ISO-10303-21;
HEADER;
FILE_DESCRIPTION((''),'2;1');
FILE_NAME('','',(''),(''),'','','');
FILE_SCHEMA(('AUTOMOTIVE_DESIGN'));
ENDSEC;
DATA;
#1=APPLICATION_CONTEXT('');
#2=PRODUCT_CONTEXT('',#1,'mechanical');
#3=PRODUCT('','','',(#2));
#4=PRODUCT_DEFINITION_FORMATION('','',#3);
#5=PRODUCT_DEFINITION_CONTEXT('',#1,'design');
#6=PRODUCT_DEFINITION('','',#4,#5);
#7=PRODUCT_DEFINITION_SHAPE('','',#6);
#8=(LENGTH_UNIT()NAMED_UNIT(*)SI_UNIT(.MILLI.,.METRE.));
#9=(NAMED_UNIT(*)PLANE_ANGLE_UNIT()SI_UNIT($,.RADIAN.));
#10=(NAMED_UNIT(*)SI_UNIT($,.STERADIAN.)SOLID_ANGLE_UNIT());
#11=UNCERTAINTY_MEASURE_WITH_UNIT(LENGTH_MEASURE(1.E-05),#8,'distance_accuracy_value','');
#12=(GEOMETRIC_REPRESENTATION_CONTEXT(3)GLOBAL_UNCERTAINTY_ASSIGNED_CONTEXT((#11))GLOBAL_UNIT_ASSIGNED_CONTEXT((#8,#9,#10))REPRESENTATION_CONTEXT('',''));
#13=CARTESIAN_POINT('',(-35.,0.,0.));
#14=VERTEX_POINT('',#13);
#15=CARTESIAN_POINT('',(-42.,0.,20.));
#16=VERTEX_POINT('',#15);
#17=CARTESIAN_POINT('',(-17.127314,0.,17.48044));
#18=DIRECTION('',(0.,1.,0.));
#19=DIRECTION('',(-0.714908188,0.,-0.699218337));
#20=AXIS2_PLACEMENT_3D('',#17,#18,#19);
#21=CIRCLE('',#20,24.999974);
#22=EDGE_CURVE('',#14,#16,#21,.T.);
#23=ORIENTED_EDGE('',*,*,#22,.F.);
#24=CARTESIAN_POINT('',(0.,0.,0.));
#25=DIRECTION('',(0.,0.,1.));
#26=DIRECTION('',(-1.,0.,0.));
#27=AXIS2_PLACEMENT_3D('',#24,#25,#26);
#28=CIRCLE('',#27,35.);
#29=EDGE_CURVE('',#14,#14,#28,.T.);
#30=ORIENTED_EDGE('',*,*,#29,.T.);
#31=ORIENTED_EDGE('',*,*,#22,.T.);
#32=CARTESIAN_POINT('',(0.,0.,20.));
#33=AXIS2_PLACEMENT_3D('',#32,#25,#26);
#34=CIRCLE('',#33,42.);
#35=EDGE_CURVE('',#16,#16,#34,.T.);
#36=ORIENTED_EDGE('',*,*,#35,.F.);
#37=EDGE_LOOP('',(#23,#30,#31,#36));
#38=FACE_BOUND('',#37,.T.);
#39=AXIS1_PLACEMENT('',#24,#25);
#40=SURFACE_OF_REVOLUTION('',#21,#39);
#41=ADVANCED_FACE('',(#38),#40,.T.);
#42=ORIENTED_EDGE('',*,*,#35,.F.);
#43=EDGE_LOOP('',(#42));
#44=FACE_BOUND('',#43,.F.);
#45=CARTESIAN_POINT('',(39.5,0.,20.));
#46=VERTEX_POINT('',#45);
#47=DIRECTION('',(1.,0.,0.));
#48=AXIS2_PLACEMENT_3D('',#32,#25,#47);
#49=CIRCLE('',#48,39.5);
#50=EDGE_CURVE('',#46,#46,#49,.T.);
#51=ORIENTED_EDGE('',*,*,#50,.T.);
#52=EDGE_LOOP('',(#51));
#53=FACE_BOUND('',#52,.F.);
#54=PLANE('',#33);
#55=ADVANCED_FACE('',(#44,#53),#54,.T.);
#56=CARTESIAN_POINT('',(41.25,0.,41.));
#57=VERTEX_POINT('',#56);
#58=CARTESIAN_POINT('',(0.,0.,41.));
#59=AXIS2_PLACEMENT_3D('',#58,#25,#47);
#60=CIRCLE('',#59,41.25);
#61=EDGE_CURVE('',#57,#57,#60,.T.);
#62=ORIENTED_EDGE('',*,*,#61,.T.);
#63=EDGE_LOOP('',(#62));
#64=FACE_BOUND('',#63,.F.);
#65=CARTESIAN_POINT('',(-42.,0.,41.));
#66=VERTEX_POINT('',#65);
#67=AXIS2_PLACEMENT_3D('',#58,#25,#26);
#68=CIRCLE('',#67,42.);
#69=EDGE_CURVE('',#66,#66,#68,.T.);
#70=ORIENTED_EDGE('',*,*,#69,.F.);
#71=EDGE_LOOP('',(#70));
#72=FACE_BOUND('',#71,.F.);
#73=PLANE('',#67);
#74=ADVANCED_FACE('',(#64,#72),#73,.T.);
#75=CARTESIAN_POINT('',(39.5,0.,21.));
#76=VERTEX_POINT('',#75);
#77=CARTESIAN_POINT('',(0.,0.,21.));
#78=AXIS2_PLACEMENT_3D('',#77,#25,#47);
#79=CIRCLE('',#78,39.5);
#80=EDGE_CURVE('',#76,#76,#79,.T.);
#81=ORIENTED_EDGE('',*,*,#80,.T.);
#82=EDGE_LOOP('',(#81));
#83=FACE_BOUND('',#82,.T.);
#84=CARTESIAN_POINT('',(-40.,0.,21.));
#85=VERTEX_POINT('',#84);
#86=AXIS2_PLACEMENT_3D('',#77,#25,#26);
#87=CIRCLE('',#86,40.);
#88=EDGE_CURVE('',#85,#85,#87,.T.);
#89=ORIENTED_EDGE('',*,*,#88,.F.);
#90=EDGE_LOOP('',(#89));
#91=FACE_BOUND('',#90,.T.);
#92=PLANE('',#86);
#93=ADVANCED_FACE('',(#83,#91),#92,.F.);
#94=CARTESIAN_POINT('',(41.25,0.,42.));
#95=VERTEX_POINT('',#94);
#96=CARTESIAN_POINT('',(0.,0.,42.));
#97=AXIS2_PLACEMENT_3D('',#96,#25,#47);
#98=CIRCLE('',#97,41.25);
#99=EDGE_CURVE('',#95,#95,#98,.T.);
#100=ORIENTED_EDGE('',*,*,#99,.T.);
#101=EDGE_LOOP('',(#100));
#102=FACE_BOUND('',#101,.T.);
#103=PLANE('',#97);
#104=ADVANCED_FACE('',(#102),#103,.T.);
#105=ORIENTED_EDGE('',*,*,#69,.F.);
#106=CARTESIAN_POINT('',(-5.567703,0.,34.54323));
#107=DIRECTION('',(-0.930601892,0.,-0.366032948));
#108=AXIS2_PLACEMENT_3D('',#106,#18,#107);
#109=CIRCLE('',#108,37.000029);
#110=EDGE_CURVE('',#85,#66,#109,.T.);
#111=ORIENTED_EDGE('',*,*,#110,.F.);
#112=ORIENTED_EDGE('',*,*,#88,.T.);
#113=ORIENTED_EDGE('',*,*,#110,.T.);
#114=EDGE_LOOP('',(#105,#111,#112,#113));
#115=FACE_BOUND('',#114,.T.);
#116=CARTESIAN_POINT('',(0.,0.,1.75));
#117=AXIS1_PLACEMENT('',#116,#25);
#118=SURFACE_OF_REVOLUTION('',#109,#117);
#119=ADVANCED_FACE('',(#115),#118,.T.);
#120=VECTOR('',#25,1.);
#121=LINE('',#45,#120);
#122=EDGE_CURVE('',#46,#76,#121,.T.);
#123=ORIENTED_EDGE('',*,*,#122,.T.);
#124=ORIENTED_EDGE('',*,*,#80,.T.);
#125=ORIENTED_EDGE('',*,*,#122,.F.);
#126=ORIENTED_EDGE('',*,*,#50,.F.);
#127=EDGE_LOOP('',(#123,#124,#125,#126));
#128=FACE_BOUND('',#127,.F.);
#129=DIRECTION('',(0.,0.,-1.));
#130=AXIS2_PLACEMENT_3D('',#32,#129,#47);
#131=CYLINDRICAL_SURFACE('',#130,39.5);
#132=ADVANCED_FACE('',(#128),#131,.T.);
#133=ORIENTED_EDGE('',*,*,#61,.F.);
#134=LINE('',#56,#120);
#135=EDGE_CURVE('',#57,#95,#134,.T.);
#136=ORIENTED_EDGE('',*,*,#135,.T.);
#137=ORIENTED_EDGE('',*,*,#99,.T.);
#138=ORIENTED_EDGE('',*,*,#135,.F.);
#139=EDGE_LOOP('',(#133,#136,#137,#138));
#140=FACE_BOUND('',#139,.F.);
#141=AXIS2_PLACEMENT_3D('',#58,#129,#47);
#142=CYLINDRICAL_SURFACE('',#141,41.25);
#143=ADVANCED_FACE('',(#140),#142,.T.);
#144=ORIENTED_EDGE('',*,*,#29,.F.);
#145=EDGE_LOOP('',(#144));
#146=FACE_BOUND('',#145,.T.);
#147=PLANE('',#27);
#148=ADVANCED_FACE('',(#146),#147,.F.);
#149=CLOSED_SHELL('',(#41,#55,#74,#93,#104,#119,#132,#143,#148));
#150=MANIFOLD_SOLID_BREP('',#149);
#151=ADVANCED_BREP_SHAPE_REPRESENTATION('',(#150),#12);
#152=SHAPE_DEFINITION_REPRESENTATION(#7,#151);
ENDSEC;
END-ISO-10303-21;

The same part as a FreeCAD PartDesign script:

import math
import FreeCAD as App
import Part
import Sketcher

V = App.Vector

doc = App.newDocument("Part")
params = doc.addObject("Spreadsheet::Sheet", "Params")
for row, (alias, value) in enumerate([
    ("sketch1_radius", "25 mm"),
    ("sketch1_width", "35 mm"),
    ("sketch1_width2", "42 mm"),
    ("sketch1_height", "20 mm"),
    ("revolution_angle", "360 deg"),
    ("sketch2_diameter", "79 mm"),
    ("pad1_length", "1 mm"),
    ("sketch3_radius", "37 mm"),
    ("sketch3_width", "40 mm"),
    ("sketch3_width2", "42 mm"),
    ("sketch3_height", "20 mm"),
    ("revolution2_angle", "360 deg"),
    ("sketch4_diameter", "82.5 mm"),
    ("pad2_length", "1 mm"),
], start=1):
    params.set(f"A{row}", alias)
    params.set(f"B{row}", "=" + value)
    params.setAlias(f"B{row}", alias)

body = doc.addObject("PartDesign::Body", "Body")

# Sketch on XZ plane
sketch1 = doc.addObject("Sketcher::SketchObject", "Sketch")
body.addObject(sketch1)
sketch1.AttachmentSupport = (doc.XZ_Plane, [""])
sketch1.MapMode = "FlatFace"
sketch1.addGeometry(Part.LineSegment(V(0, 20, 0), V(0, 0, 0)), False)
sketch1.addGeometry(Part.LineSegment(V(0, 0, 0), V(-35, 0, 0)), False)
sketch1.addGeometry(Part.ArcOfCircle(Part.Circle(V(-17, 17, 0), V(0, 0, 1), 25), math.radians(174), math.radians(224)), False)
sketch1.addGeometry(Part.LineSegment(V(-42, 20, 0), V(0, 20, 0)), False)
sketch1.addConstraint(Sketcher.Constraint("Coincident", 0, 2, 1, 1))
sketch1.addConstraint(Sketcher.Constraint("Coincident", 1, 2, 2, 2))
sketch1.addConstraint(Sketcher.Constraint("Coincident", 2, 1, 3, 1))
sketch1.addConstraint(Sketcher.Constraint("Coincident", 3, 2, 0, 1))
sketch1.addConstraint(Sketcher.Constraint("Vertical", 0))
sketch1.addConstraint(Sketcher.Constraint("Horizontal", 1))
sketch1.addConstraint(Sketcher.Constraint("Horizontal", 3))
sketch1.addConstraint(Sketcher.Constraint("Coincident", 0, 2, -1, 1))
sketch1.addConstraint(Sketcher.Constraint("Radius", 2, 25.0))
sketch1.addConstraint(Sketcher.Constraint("DistanceX", 1, 2, 1, 1, 35.0))
sketch1.addConstraint(Sketcher.Constraint("DistanceX", 3, 1, 3, 2, 42.0))
sketch1.addConstraint(Sketcher.Constraint("DistanceY", 0, 2, 0, 1, 20.0))
sketch1.setExpression("Constraints[8]", "Params.sketch1_radius")
sketch1.setExpression("Constraints[9]", "Params.sketch1_width")
sketch1.setExpression("Constraints[10]", "Params.sketch1_width2")
sketch1.setExpression("Constraints[11]", "Params.sketch1_height")
revolution = doc.addObject("PartDesign::Revolution", "Revolution")
body.addObject(revolution)
revolution.Profile = sketch1
revolution.ReferenceAxis = (sketch1, ["V_Axis"])
revolution.setExpression("Angle", "Params.revolution_angle")

# Sketch on XY plane
sketch2 = doc.addObject("Sketcher::SketchObject", "Sketch001")
body.addObject(sketch2)
sketch2.AttachmentSupport = (doc.XY_Plane, [""])
sketch2.MapMode = "FlatFace"
sketch2.AttachmentOffset = App.Placement(V(0, 0, 20), App.Rotation())
sketch2.addGeometry(Part.Circle(V(0, 0, 0), V(0, 0, 1), 40), False)
sketch2.addConstraint(Sketcher.Constraint("Coincident", 0, 3, -1, 1))
sketch2.addConstraint(Sketcher.Constraint("Diameter", 0, 79.0))
sketch2.setExpression("Constraints[1]", "Params.sketch2_diameter")
pad1 = doc.addObject("PartDesign::Pad", "Pad")
body.addObject(pad1)
pad1.Profile = sketch2
pad1.setExpression("Length", "Params.pad1_length")

# Sketch on XZ plane
sketch3 = doc.addObject("Sketcher::SketchObject", "Sketch002")
body.addObject(sketch3)
sketch3.AttachmentSupport = (doc.XZ_Plane, [""])
sketch3.MapMode = "FlatFace"
sketch3.addGeometry(Part.LineSegment(V(0, 41, 0), V(0, 21, 0)), False)
sketch3.addGeometry(Part.LineSegment(V(0, 21, 0), V(-40, 21, 0)), False)
sketch3.addGeometry(Part.ArcOfCircle(Part.Circle(V(-6, 35, 0), V(0, 0, 1), 37), math.radians(170), math.radians(201)), False)
sketch3.addGeometry(Part.LineSegment(V(-42, 41, 0), V(0, 41, 0)), False)
sketch3.addConstraint(Sketcher.Constraint("Coincident", 0, 2, 1, 1))
sketch3.addConstraint(Sketcher.Constraint("Coincident", 1, 2, 2, 2))
sketch3.addConstraint(Sketcher.Constraint("Coincident", 2, 1, 3, 1))
sketch3.addConstraint(Sketcher.Constraint("Coincident", 3, 2, 0, 1))
sketch3.addConstraint(Sketcher.Constraint("Vertical", 0))
sketch3.addConstraint(Sketcher.Constraint("Horizontal", 1))
sketch3.addConstraint(Sketcher.Constraint("Horizontal", 3))
sketch3.addConstraint(Sketcher.Constraint("PointOnObject", 0, 2, -2))
sketch3.addConstraint(Sketcher.Constraint("Radius", 2, 37.0))
sketch3.addConstraint(Sketcher.Constraint("DistanceX", 1, 2, 1, 1, 40.0))
sketch3.addConstraint(Sketcher.Constraint("DistanceX", 3, 1, 3, 2, 42.0))
sketch3.addConstraint(Sketcher.Constraint("DistanceY", 0, 2, 0, 1, 20.0))
sketch3.addConstraint(Sketcher.Constraint("DistanceY", -1, 1, 0, 2, 21.0))
sketch3.setExpression("Constraints[8]", "Params.sketch3_radius")
sketch3.setExpression("Constraints[9]", "Params.sketch3_width")
sketch3.setExpression("Constraints[10]", "Params.sketch3_width2")
sketch3.setExpression("Constraints[11]", "Params.sketch3_height")
revolution2 = doc.addObject("PartDesign::Revolution", "Revolution001")
body.addObject(revolution2)
revolution2.Profile = sketch3
revolution2.ReferenceAxis = (sketch3, ["V_Axis"])
revolution2.setExpression("Angle", "Params.revolution2_angle")

# Sketch on XY plane
sketch4 = doc.addObject("Sketcher::SketchObject", "Sketch003")
body.addObject(sketch4)
sketch4.AttachmentSupport = (doc.XY_Plane, [""])
sketch4.MapMode = "FlatFace"
sketch4.AttachmentOffset = App.Placement(V(0, 0, 41), App.Rotation())
sketch4.addGeometry(Part.Circle(V(0, 0, 0), V(0, 0, 1), 41), False)
sketch4.addConstraint(Sketcher.Constraint("Coincident", 0, 3, -1, 1))
sketch4.addConstraint(Sketcher.Constraint("Diameter", 0, 82.5))
sketch4.setExpression("Constraints[1]", "Params.sketch4_diameter")
pad2 = doc.addObject("PartDesign::Pad", "Pad001")
body.addObject(pad2)
pad2.Profile = sketch4
pad2.setExpression("Length", "Params.pad2_length")

doc.recompute()
